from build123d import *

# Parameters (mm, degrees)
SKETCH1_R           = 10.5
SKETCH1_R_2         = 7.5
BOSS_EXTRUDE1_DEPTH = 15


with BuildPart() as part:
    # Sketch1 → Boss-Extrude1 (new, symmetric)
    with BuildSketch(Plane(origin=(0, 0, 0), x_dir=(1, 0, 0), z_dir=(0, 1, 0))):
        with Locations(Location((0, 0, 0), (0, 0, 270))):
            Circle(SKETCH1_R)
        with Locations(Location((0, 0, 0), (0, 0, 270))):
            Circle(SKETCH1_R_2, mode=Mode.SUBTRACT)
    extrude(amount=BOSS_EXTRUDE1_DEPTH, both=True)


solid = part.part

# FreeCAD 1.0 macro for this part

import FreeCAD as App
import Part
import Sketcher
from FreeCAD import Vector
Q = App.Units.Quantity

doc = App.newDocument("Part")
body = doc.addObject("PartDesign::Body", "Body")

sketch1 = doc.addObject("Sketcher::SketchObject", "Sketch")
body.addObject(sketch1)
sketch1.AttachmentSupport = (doc.XZ_Plane, [""])
sketch1.MapMode = "FlatFace"
sketch1.addGeometry(Part.Circle(Vector(0, 0, 0), Vector(0, 0, 1), 10), False)
sketch1.addGeometry(Part.Circle(Vector(0, 0, 0), Vector(0, 0, 1), 8), False)
sketch1.addConstraint(Sketcher.Constraint("Coincident", 0, 3, -1, 1))
sketch1.addConstraint(Sketcher.Constraint("Coincident", 1, 3, -1, 1))
sketch1.addConstraint(Sketcher.Constraint("Diameter", 0, Q("21 mm")))
sketch1.addConstraint(Sketcher.Constraint("Diameter", 1, Q("15 mm")))
pad1 = doc.addObject("PartDesign::Pad", "Pad")
body.addObject(pad1)
pad1.Profile = sketch1
pad1.Length = 30
pad1.Midplane = True

doc.recompute()
